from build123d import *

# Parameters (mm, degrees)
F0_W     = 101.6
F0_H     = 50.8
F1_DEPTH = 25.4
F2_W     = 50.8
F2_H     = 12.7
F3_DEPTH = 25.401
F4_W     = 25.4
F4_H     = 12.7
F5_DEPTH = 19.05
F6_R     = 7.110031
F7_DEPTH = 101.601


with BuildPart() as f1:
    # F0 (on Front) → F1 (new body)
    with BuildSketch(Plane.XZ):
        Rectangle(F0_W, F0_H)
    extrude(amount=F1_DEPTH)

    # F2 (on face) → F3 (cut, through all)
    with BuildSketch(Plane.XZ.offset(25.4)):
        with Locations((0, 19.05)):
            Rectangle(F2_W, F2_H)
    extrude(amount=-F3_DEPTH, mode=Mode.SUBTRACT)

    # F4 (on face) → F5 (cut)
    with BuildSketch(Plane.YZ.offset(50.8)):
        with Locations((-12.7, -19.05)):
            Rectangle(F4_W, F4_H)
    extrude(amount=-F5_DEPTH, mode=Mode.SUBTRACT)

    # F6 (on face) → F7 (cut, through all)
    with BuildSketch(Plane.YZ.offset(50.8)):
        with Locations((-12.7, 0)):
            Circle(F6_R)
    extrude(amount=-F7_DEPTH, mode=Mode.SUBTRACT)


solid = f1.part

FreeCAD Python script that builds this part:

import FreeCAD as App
import Part
import Sketcher
from FreeCAD import Vector
Q = App.Units.Quantity

doc = App.newDocument("Part")
body = doc.addObject("PartDesign::Body", "Body")

# Sketch on XZ plane
sketch1 = doc.addObject("Sketcher::SketchObject", "Sketch")
body.addObject(sketch1)
sketch1.AttachmentSupport = (doc.XZ_Plane, [""])
sketch1.MapMode = "FlatFace"
sketch1.addGeometry([
    Part.LineSegment(Vector(-51, 25, 0), Vector(-51, -25, 0)),
    Part.LineSegment(Vector(-51, -25, 0), Vector(51, -25, 0)),
    Part.LineSegment(Vector(51, -25, 0), Vector(51, 25, 0)),
    Part.LineSegment(Vector(51, 25, 0), Vector(-51, 25, 0)),
], False)
sketch1.addConstraint([
    Sketcher.Constraint("Coincident", 0, 2, 1, 1),
    Sketcher.Constraint("Coincident", 1, 2, 2, 1),
    Sketcher.Constraint("Coincident", 2, 2, 3, 1),
    Sketcher.Constraint("Coincident", 3, 2, 0, 1),
    Sketcher.Constraint("Vertical", 0),
    Sketcher.Constraint("Horizontal", 1),
    Sketcher.Constraint("Vertical", 2),
    Sketcher.Constraint("Horizontal", 3),
    Sketcher.Constraint("Symmetric", 0, 2, 2, 2, -1, 1),
    Sketcher.Constraint("DistanceX", 1, 1, 1, 2, Q("4 in")),
    Sketcher.Constraint("DistanceY", 0, 2, 0, 1, Q("2 in")),
])
pad1 = doc.addObject("PartDesign::Pad", "Pad")
body.addObject(pad1)
pad1.Profile = sketch1
pad1.Length = Q("1 in")

# Sketch on XZ plane
sketch2 = doc.addObject("Sketcher::SketchObject", "Sketch001")
body.addObject(sketch2)
sketch2.AttachmentSupport = (doc.XZ_Plane, [""])
sketch2.MapMode = "FlatFace"
sketch2.AttachmentOffset = App.Placement(Vector(0, 0, 1 * 25.4), App.Rotation())
sketch2.addGeometry([
    Part.LineSegment(Vector(-25, 25, 0), Vector(-25, 13, 0)),
    Part.LineSegment(Vector(-25, 13, 0), Vector(25, 13, 0)),
    Part.LineSegment(Vector(25, 13, 0), Vector(25, 25, 0)),
    Part.LineSegment(Vector(25, 25, 0), Vector(-25, 25, 0)),
], False)
sketch2.addConstraint([
    Sketcher.Constraint("Coincident", 0, 2, 1, 1),
    Sketcher.Constraint("Coincident", 1, 2, 2, 1),
    Sketcher.Constraint("Coincident", 2, 2, 3, 1),
    Sketcher.Constraint("Coincident", 3, 2, 0, 1),
    Sketcher.Constraint("Vertical", 0),
    Sketcher.Constraint("Horizontal", 1),
    Sketcher.Constraint("Vertical", 2),
    Sketcher.Constraint("Horizontal", 3),
    Sketcher.Constraint("DistanceX", 1, 1, 1, 2, Q("2 in")),
    Sketcher.Constraint("DistanceY", 0, 2, 0, 1, Q("0.5 in")),
    Sketcher.Constraint("DistanceX", 0, 2, -1, 1, Q("1 in")),
    Sketcher.Constraint("DistanceY", -1, 1, 2, 2, Q("1 in")),
])
pocket1 = doc.addObject("PartDesign::Pocket", "Pocket")
body.addObject(pocket1)
pocket1.Profile = sketch2
pocket1.Type = "ThroughAll"

# Sketch on YZ plane
sketch3 = doc.addObject("Sketcher::SketchObject", "Sketch002")
body.addObject(sketch3)
sketch3.AttachmentSupport = (doc.YZ_Plane, [""])
sketch3.MapMode = "FlatFace"
sketch3.AttachmentOffset = App.Placement(Vector(0, 0, 2 * 25.4), App.Rotation())
sketch3.addGeometry([
    Part.LineSegment(Vector(-25, -13, 0), Vector(-25, -25, 0)),
    Part.LineSegment(Vector(-25, -25, 0), Vector(0, -25, 0)),
    Part.LineSegment(Vector(0, -25, 0), Vector(0, -13, 0)),
    Part.LineSegment(Vector(0, -13, 0), Vector(-25, -13, 0)),
], False)
sketch3.addConstraint([
    Sketcher.Constraint("Coincident", 0, 2, 1, 1),
    Sketcher.Constraint("Coincident", 1, 2, 2, 1),
    Sketcher.Constraint("Coincident", 2, 2, 3, 1),
    Sketcher.Constraint("Coincident", 3, 2, 0, 1),
    Sketcher.Constraint("Vertical", 0),
    Sketcher.Constraint("Horizontal", 1),
    Sketcher.Constraint("Vertical", 2),
    Sketcher.Constraint("Horizontal", 3),
    Sketcher.Constraint("PointOnObject", 1, 2, -2),
    Sketcher.Constraint("DistanceX", 1, 1, 1, 2, Q("1 in")),
    Sketcher.Constraint("DistanceY", 0, 2, 0, 1, Q("0.5 in")),
    Sketcher.Constraint("DistanceY", 0, 2, -1, 1, Q("1 in")),
])
pocket2 = doc.addObject("PartDesign::Pocket", "Pocket001")
body.addObject(pocket2)
pocket2.Profile = sketch3
pocket2.Length = Q("0.75 in")

# Sketch on YZ plane
sketch4 = doc.addObject("Sketcher::SketchObject", "Sketch003")
body.addObject(sketch4)
sketch4.AttachmentSupport = (doc.YZ_Plane, [""])
sketch4.MapMode = "FlatFace"
sketch4.AttachmentOffset = App.Placement(Vector(0, 0, 2 * 25.4), App.Rotation())
sketch4.addGeometry(Part.Circle(Vector(-13, 0, 0), Vector(0, 0, 1), 7), False)
sketch4.addConstraint([
    Sketcher.Constraint("PointOnObject", 0, 3, -1),
    Sketcher.Constraint("DistanceX", 0, 3, -1, 1, Q("0.5 in")),
    Sketcher.Constraint("Diameter", 0, Q("14.220062 mm")),
])
pocket3 = doc.addObject("PartDesign::Pocket", "Pocket002")
body.addObject(pocket3)
pocket3.Profile = sketch4
pocket3.Type = "ThroughAll"

doc.recompute()
